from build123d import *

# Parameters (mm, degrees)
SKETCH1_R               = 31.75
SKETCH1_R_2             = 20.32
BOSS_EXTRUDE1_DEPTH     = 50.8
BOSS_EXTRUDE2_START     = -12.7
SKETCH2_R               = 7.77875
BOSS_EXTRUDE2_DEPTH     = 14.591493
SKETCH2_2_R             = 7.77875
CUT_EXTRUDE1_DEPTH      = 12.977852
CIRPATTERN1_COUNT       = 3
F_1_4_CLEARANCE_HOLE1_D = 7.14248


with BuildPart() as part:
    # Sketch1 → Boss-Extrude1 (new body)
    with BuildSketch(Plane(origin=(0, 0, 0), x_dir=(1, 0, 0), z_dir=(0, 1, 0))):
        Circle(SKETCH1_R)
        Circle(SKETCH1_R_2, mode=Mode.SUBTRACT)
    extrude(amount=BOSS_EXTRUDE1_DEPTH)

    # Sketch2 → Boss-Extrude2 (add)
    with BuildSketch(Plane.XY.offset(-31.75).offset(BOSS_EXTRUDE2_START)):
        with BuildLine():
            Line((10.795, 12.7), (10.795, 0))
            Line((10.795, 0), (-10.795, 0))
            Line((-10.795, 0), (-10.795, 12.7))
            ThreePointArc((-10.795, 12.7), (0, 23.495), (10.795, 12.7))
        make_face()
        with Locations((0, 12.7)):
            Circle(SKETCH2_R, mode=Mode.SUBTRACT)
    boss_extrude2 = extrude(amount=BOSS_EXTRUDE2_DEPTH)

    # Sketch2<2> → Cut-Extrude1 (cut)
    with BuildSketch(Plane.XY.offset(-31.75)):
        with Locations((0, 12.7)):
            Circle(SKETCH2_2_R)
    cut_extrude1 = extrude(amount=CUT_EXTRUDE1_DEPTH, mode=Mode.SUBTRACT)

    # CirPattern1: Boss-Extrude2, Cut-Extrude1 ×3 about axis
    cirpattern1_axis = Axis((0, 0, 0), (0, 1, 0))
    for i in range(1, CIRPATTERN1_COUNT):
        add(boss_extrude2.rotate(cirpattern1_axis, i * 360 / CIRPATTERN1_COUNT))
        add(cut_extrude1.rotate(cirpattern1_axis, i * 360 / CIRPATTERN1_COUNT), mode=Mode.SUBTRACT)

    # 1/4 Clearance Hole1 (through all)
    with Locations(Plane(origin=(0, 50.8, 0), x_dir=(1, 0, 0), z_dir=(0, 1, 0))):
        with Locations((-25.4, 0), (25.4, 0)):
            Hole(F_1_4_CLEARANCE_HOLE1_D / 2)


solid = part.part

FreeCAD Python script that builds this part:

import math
import FreeCAD as App
import Part
import Sketcher
from FreeCAD import Vector
Q = App.Units.Quantity

doc = App.newDocument("Part")
body = doc.addObject("PartDesign::Body", "Body")

sketch1 = doc.addObject("Sketcher::SketchObject", "Sketch")
body.addObject(sketch1)
sketch1.AttachmentSupport = (doc.XZ_Plane, [""])
sketch1.MapMode = "FlatFace"
sketch1.addGeometry([
    Part.Circle(Vector(0, 0, 0), Vector(0, 0, 1), 32),
    Part.Circle(Vector(0, 0, 0), Vector(0, 0, 1), 20),
], False)
sketch1.addConstraint([
    Sketcher.Constraint("Coincident", 0, 3, -1, 1),
    Sketcher.Constraint("Coincident", 1, 3, -1, 1),
    Sketcher.Constraint("Diameter", 0, Q("2.5 in")),
    Sketcher.Constraint("Diameter", 1, Q("1.6 in")),
])
pad1 = doc.addObject("PartDesign::Pad", "Pad")
body.addObject(pad1)
pad1.Profile = sketch1
pad1.Length = Q("2 in")
pad1.Reversed = True

sketch2 = doc.addObject("Sketcher::SketchObject", "Sketch001")
body.addObject(sketch2)
sketch2.AttachmentSupport = (doc.XY_Plane, [""])
sketch2.MapMode = "FlatFace"
sketch2.AttachmentOffset = App.Placement(Vector(0, 0, -1.75 * 25.4), App.Rotation())
sketch2.addGeometry([
    Part.LineSegment(Vector(11, 0, 0), Vector(11, 13, 0)),
    Part.ArcOfCircle(Part.Circle(Vector(0, 13, 0), Vector(0, 0, 1), 11), math.radians(0), math.radians(180)),
    Part.LineSegment(Vector(-11, 13, 0), Vector(-11, 0, 0)),
    Part.LineSegment(Vector(-11, 0, 0), Vector(11, 0, 0)),
    Part.Circle(Vector(0, 13, 0), Vector(0, 0, 1), 8),
], False)
sketch2.addConstraint([
    Sketcher.Constraint("Tangent", 0, 2, 1, 1),
    Sketcher.Constraint("Tangent", 1, 2, 2, 1),
    Sketcher.Constraint("Coincident", 2, 2, 3, 1),
    Sketcher.Constraint("Coincident", 3, 2, 0, 1),
    Sketcher.Constraint("Vertical", 0),
    Sketcher.Constraint("Vertical", 2),
    Sketcher.Constraint("Horizontal", 3),
    Sketcher.Constraint("Coincident", 4, 3, 1, 3),
    Sketcher.Constraint("Symmetric", 2, 2, 3, 2, -1, 1),
    Sketcher.Constraint("DistanceY", 0, 1, 0, 2, Q("0.5 in")),
    Sketcher.Constraint("Radius", 1, Q("0.425 in")),
    Sketcher.Constraint("Diameter", 4, Q("0.6125 in")),
])
pad2 = doc.addObject("PartDesign::Pad", "Pad001")
body.addObject(pad2)
pad2.Profile = sketch2
pad2.Length = 14.591493

sketch3 = doc.addObject("Sketcher::SketchObject", "Sketch002")
body.addObject(sketch3)
sketch3.AttachmentSupport = (doc.XY_Plane, [""])
sketch3.MapMode = "FlatFace"
sketch3.AttachmentOffset = App.Placement(Vector(0, 0, -1.25 * 25.4), App.Rotation())
sketch3.addGeometry(Part.Circle(Vector(0, 13, 0), Vector(0, 0, 1), 8), False)
sketch3.addConstraint([
    Sketcher.Constraint("PointOnObject", 0, 3, -2),
    Sketcher.Constraint("Diameter", 0, Q("0.6125 in")),
    Sketcher.Constraint("DistanceY", -1, 1, 0, 3, Q("0.5 in")),
])
pocket1 = doc.addObject("PartDesign::Pocket", "Pocket")
body.addObject(pocket1)
pocket1.Profile = sketch3
pocket1.Length = 12.977852
pocket1.Reversed = True
doc.recompute()

polarpattern = doc.addObject("PartDesign::PolarPattern", "PolarPattern")
body.addObject(polarpattern)
polarpattern.Originals = [pad2, pocket1]
polarpattern.Axis = (doc.Y_Axis, [""])
polarpattern.Angle = 360
polarpattern.Occurrences = 3
body.Tip = polarpattern

sketch4 = doc.addObject("Sketcher::SketchObject", "Sketch003")
body.addObject(sketch4)
sketch4.AttachmentSupport = (doc.XZ_Plane, [""])
sketch4.MapMode = "FlatFace"
sketch4.AttachmentOffset = App.Placement(Vector(0, 0, -2 * 25.4), App.Rotation())
sketch4.addGeometry([
    Part.Circle(Vector(-25.4, 0, 0), Vector(0, 0, 1), 3.6),
    Part.Circle(Vector(25.4, 0, 0), Vector(0, 0, 1), 3.6),
], False)
sketch4.addConstraint([
    Sketcher.Constraint("Equal", 0, 1),
    Sketcher.Constraint("Symmetric", 0, 3, 1, 3, -1, 1),
    Sketcher.Constraint("PointOnObject", 0, 3, -1),
    Sketcher.Constraint("DistanceX", 0, 3, -1, 1, Q("1 in")),
    Sketcher.Constraint("Diameter", 0, Q("0.2812 in")),
])
doc.recompute()
hole = doc.addObject("PartDesign::Hole", "Hole")
body.addObject(hole)
hole.Profile = sketch4
hole.ThreadType = "None"
hole.Diameter = Q("0.2812 in")
hole.DepthType = "ThroughAll"
hole.Reversed = True

doc.recompute()
